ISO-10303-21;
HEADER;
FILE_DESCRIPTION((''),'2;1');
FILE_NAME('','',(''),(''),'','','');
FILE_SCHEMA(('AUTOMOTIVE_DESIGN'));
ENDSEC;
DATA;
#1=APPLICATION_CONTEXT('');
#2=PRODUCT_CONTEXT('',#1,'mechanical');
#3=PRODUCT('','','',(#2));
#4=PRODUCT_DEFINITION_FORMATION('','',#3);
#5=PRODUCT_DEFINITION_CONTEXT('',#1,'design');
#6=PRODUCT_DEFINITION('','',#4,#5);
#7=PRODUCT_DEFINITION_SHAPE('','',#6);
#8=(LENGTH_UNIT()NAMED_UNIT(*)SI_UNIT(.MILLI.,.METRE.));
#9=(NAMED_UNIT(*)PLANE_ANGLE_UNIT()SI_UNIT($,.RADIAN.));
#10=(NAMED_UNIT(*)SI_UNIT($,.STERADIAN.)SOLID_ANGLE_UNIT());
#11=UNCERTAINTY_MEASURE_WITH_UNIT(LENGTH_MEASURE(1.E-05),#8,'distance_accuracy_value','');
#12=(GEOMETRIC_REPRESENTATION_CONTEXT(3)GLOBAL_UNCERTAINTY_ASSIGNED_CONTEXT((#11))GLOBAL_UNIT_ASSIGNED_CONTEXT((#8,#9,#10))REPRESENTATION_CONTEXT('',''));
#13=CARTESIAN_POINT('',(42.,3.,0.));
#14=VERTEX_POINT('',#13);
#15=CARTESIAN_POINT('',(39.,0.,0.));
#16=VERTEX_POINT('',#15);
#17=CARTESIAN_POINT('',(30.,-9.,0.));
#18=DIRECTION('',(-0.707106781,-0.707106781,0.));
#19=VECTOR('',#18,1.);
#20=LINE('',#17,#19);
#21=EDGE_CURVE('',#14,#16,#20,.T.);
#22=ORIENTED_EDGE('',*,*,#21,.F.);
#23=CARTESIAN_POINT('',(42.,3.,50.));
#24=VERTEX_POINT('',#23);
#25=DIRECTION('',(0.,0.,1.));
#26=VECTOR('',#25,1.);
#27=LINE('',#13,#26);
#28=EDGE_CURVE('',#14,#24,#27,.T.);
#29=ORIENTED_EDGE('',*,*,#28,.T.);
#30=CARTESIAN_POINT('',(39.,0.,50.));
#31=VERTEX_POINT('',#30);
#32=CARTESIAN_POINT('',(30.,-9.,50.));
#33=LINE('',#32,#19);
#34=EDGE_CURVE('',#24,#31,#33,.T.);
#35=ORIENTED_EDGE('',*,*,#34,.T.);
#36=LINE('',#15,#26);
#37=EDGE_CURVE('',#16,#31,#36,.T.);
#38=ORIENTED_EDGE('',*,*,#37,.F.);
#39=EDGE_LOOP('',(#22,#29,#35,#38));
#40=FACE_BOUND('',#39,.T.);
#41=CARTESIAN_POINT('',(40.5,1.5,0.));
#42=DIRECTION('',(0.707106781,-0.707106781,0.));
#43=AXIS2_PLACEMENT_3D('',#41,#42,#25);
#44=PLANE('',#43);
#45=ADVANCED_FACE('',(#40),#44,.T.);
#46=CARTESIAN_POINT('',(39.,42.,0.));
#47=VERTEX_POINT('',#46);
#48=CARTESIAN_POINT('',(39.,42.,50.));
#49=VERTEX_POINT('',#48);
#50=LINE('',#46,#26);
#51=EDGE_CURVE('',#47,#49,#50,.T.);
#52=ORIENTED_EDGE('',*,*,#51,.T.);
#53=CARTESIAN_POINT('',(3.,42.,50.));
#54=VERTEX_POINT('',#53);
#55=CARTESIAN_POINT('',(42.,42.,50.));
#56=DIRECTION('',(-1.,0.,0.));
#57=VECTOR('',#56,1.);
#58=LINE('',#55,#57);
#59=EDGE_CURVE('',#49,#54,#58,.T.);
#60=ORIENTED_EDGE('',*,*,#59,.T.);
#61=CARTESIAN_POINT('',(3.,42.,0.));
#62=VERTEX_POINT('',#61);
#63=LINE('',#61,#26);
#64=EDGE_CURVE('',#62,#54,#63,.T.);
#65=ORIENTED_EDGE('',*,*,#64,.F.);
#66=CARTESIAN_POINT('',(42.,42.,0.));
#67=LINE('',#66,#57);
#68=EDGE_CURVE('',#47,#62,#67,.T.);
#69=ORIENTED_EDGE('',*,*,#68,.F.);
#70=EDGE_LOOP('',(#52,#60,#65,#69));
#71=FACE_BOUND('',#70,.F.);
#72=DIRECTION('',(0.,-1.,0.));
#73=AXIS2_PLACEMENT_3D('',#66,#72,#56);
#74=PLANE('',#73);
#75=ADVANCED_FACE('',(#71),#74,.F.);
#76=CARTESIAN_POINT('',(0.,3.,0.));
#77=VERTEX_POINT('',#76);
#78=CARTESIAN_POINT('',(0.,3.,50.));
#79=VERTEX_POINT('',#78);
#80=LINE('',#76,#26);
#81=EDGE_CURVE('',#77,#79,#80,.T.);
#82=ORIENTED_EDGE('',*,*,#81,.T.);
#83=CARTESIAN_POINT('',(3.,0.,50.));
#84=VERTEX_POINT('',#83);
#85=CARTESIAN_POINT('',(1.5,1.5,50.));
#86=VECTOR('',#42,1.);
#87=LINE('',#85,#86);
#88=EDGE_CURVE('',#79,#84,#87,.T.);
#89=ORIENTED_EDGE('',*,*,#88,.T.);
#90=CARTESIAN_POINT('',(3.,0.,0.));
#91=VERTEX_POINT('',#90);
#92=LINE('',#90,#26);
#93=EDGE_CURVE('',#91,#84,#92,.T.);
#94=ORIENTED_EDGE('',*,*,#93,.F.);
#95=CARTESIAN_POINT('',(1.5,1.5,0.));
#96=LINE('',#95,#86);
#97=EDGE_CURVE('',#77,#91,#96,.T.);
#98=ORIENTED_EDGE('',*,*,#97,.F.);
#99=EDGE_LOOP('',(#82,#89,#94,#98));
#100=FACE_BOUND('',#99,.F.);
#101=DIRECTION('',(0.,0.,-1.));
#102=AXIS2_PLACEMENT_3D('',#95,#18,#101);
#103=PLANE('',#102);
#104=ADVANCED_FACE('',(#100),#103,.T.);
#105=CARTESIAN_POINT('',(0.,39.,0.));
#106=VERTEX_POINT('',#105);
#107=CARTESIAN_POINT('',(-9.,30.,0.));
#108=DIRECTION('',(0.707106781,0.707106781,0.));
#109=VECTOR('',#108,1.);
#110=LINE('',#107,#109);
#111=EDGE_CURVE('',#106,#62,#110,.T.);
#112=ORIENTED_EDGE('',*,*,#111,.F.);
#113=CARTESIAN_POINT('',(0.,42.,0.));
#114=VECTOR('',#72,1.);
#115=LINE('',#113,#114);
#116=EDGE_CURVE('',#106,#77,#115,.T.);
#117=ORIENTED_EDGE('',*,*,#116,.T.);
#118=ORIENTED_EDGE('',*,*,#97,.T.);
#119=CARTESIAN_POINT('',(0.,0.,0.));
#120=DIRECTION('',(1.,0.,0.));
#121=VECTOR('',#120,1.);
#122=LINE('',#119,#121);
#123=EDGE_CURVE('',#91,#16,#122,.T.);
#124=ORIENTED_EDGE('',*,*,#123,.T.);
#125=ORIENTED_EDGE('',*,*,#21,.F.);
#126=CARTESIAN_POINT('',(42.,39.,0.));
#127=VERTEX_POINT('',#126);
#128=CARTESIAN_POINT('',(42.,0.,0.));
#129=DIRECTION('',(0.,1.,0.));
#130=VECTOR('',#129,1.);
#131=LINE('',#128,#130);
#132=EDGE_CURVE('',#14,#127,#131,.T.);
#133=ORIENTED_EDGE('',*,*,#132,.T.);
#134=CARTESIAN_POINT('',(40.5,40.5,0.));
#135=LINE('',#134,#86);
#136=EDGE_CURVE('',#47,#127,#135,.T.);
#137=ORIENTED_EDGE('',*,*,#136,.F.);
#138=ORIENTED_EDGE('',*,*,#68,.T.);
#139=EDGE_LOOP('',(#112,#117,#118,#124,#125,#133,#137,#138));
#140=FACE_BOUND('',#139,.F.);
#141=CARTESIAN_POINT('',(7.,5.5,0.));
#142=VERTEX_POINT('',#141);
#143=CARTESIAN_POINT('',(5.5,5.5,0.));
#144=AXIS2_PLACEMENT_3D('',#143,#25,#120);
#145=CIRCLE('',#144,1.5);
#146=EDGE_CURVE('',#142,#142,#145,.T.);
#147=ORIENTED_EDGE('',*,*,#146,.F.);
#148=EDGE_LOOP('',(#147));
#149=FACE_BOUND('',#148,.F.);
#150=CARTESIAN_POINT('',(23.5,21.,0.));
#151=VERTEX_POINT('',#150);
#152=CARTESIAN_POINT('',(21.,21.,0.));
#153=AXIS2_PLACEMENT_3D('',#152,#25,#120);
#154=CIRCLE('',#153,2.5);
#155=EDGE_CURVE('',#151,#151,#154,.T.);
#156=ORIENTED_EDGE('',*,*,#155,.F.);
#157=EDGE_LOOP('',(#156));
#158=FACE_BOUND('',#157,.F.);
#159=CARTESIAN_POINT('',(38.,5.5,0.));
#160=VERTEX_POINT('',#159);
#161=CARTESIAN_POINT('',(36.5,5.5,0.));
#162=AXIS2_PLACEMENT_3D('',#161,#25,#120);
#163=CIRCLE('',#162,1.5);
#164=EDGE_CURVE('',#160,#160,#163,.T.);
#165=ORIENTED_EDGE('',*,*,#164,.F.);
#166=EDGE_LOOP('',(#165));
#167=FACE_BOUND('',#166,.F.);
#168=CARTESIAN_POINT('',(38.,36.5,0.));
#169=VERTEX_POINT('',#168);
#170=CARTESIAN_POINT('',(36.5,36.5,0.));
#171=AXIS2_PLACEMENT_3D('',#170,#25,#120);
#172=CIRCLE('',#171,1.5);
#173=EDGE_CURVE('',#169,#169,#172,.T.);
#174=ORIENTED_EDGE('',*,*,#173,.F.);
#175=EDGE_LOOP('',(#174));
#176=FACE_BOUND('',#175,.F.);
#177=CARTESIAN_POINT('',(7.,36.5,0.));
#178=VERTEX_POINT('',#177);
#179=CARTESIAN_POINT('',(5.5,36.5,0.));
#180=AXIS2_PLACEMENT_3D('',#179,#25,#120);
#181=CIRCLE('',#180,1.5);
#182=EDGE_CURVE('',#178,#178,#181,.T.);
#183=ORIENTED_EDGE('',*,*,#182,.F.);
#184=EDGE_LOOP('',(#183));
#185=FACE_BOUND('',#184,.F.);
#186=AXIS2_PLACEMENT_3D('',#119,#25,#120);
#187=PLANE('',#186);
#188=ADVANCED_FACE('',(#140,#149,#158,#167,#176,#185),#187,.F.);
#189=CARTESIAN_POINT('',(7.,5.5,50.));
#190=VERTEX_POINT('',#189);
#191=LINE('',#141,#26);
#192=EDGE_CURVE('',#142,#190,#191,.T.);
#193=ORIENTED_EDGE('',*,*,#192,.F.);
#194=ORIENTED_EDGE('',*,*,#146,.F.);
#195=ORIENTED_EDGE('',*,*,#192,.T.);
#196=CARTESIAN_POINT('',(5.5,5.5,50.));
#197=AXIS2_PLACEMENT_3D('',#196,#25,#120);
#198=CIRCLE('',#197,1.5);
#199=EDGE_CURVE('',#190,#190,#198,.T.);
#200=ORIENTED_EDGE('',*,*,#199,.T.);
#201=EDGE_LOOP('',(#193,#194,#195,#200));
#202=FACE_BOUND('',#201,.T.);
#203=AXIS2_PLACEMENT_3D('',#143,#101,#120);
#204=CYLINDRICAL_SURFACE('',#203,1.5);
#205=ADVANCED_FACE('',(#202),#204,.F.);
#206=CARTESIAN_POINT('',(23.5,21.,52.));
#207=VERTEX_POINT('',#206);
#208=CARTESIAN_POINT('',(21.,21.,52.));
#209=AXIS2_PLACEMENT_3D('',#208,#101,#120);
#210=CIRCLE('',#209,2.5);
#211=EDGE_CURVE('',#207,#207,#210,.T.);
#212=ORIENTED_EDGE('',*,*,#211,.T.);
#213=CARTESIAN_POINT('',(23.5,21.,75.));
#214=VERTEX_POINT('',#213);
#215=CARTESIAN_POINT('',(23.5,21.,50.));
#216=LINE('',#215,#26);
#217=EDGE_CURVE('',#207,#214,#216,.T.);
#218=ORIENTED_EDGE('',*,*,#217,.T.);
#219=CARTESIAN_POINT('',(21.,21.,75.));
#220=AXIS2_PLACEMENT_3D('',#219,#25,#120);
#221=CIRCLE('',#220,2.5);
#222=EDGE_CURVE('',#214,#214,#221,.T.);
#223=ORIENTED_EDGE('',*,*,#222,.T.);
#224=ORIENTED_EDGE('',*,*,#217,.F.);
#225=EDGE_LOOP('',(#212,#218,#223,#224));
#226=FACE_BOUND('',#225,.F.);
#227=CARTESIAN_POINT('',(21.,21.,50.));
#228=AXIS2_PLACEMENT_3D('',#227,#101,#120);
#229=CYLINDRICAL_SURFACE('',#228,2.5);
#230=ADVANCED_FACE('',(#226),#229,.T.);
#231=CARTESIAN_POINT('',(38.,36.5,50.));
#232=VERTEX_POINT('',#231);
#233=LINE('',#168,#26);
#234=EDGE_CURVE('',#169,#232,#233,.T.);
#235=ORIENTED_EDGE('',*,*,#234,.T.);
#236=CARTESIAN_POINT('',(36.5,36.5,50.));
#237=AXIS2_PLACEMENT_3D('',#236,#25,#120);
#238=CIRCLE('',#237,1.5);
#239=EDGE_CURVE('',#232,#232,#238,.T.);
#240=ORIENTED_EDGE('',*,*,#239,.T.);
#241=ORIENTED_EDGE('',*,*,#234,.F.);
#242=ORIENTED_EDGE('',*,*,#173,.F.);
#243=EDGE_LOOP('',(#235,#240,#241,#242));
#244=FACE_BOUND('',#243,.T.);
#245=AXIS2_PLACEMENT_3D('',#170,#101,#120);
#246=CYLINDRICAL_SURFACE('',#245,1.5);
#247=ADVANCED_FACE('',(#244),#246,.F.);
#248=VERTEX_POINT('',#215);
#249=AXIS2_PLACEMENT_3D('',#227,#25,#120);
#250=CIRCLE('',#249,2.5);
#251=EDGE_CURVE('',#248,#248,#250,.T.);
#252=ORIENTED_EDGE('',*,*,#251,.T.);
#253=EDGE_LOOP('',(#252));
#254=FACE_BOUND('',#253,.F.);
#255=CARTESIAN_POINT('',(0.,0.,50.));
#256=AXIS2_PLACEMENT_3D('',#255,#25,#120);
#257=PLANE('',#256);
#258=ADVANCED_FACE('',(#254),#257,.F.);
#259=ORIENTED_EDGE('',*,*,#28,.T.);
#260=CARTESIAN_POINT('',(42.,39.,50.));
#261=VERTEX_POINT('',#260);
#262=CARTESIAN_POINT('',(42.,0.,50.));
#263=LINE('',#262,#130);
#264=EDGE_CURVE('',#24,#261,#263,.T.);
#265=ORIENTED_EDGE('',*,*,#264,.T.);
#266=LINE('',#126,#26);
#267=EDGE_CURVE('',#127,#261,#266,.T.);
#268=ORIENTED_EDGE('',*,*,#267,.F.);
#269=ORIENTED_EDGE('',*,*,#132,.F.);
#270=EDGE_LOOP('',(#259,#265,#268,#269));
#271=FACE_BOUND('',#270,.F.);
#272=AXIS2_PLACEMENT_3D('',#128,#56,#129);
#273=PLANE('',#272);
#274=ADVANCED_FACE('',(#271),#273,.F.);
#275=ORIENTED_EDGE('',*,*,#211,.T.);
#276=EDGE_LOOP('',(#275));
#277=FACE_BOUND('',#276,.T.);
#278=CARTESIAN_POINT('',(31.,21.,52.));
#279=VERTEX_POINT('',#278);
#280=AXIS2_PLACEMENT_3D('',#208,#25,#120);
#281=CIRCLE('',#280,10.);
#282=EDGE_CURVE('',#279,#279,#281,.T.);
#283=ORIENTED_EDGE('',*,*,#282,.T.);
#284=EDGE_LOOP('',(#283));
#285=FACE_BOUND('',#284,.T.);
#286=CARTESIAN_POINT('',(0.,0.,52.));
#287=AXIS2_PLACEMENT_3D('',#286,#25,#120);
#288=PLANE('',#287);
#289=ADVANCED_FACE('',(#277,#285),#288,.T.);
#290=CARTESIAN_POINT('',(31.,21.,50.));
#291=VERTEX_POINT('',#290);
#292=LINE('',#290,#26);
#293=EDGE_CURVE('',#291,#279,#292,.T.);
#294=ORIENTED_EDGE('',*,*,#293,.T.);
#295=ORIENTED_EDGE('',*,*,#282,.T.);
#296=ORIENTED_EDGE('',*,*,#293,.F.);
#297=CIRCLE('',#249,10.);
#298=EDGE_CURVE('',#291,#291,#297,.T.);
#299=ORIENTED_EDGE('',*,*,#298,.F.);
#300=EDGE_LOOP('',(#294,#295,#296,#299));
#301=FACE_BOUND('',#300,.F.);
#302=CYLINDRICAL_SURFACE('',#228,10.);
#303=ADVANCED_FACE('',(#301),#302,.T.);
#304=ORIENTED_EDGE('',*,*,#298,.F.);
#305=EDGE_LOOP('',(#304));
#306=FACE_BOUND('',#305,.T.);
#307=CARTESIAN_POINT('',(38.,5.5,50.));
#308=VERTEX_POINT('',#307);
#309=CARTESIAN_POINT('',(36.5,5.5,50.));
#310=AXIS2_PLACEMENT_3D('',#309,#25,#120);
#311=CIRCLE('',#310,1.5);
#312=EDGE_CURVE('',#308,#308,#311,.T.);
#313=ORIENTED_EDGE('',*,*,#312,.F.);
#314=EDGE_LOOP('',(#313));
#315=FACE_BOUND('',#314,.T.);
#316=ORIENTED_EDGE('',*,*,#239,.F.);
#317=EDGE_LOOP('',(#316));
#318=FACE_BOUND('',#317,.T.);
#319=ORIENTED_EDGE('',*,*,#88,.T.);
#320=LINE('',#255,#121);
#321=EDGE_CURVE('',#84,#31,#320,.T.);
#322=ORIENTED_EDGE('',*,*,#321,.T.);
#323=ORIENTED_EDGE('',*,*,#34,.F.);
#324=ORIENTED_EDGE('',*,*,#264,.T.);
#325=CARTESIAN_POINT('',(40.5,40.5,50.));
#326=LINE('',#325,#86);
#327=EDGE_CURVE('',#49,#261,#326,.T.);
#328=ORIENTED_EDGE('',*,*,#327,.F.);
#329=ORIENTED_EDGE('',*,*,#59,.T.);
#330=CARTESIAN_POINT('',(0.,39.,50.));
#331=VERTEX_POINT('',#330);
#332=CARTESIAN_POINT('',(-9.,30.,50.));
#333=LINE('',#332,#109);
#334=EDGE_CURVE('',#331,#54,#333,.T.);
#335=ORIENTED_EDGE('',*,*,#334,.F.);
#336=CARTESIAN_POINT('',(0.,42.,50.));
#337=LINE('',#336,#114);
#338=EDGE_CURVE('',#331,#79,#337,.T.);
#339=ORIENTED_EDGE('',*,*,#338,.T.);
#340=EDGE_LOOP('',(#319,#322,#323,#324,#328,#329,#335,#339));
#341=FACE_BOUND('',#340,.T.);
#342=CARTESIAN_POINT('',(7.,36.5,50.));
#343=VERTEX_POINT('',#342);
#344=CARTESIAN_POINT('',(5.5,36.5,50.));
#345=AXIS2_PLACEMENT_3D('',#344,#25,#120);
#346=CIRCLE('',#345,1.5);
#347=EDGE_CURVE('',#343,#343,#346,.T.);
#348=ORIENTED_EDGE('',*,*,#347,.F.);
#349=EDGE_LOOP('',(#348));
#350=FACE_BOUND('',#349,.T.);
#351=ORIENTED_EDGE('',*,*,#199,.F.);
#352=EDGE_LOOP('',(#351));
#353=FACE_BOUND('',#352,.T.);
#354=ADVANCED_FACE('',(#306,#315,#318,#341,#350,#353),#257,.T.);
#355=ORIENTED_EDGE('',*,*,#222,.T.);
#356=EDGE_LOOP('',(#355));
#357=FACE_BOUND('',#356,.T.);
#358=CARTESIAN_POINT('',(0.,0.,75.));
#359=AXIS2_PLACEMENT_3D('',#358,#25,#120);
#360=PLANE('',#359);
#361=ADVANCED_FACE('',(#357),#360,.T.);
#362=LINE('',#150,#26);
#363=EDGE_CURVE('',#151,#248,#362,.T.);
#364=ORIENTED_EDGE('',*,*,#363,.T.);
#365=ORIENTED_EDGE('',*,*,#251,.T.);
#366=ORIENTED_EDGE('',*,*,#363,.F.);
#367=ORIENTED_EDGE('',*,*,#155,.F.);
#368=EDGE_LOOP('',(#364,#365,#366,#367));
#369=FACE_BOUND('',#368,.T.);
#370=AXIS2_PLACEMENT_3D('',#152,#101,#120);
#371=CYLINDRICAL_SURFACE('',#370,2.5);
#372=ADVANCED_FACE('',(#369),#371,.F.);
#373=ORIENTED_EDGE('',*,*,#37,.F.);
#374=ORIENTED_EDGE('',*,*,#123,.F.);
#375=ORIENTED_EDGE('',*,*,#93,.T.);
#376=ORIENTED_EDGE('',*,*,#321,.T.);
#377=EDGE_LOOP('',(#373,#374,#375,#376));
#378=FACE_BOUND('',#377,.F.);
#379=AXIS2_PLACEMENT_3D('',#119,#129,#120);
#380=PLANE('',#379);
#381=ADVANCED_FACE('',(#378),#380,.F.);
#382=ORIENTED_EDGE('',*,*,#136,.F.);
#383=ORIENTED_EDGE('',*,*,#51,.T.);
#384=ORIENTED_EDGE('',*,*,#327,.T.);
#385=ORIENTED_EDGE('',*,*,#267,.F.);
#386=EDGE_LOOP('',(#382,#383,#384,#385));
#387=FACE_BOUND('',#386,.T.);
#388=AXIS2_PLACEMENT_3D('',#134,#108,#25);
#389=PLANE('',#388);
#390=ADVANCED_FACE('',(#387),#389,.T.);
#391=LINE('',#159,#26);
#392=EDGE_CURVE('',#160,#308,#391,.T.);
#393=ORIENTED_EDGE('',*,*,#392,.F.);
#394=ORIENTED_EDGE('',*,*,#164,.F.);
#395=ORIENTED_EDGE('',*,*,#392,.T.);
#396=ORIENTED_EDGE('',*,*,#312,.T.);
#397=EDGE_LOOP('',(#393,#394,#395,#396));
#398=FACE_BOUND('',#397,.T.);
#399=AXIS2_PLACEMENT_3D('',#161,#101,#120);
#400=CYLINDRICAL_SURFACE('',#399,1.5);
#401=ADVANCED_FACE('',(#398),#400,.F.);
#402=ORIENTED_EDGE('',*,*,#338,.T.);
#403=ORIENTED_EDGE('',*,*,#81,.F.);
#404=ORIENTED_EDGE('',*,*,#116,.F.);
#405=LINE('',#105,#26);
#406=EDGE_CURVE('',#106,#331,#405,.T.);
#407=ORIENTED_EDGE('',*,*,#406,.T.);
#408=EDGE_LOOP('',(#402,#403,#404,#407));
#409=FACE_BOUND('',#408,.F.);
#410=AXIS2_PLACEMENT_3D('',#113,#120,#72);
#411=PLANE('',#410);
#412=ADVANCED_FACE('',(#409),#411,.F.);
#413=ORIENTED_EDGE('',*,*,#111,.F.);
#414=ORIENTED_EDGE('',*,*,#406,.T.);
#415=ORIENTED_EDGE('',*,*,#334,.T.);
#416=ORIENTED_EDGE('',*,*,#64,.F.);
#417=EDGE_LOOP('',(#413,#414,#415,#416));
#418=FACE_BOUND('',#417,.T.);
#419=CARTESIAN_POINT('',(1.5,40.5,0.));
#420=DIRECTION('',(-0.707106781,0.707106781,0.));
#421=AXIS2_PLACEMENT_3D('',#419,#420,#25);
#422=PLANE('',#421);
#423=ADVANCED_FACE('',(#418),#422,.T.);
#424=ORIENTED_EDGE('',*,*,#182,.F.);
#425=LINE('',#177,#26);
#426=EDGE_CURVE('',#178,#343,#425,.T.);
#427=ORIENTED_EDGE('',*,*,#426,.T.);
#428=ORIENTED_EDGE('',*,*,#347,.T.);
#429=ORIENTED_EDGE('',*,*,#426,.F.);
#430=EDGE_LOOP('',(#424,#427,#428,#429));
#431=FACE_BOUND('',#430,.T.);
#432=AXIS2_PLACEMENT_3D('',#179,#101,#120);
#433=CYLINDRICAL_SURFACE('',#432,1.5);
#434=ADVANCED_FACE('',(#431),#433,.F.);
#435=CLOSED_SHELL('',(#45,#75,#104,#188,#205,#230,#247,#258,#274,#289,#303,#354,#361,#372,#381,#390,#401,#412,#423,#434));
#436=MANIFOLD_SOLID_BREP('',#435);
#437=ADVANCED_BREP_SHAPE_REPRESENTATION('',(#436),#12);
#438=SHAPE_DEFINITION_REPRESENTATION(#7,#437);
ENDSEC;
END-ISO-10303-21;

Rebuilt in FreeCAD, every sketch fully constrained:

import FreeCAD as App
import Part
import Sketcher

V = App.Vector
Q = App.Units.Quantity


def edges_at(feature, points):
    """Names of the edges that pass closest to the given points."""
    edges = feature.Shape.Edges
    near = lambda p: min(range(len(edges)), key=lambda i: edges[i].distToShape(Part.Vertex(*p))[0])
    return sorted({f"Edge{near(p) + 1}" for p in points})

doc = App.newDocument("Part")
body = doc.addObject("PartDesign::Body", "Body")
body.AllowCompound = True

sketch1 = doc.addObject("Sketcher::SketchObject", "Sketch")
body.addObject(sketch1)
sketch1.AttachmentSupport = (doc.XY_Plane, [""])
sketch1.MapMode = "FlatFace"
sketch1.addGeometry(Part.LineSegment(V(0, 42, 0), V(0, 0, 0)), False)
sketch1.addGeometry(Part.LineSegment(V(0, 0, 0), V(42, 0, 0)), False)
sketch1.addGeometry(Part.LineSegment(V(42, 0, 0), V(42, 42, 0)), False)
sketch1.addGeometry(Part.LineSegment(V(42, 42, 0), V(0, 42, 0)), False)
sketch1.addGeometry(Part.Circle(V(5.5, 5.5, 0), V(0, 0, 1), 1.5), False)
sketch1.addGeometry(Part.Circle(V(36.5, 5.5, 0), V(0, 0, 1), 1.5), False)
sketch1.addGeometry(Part.Circle(V(5.5, 36.5, 0), V(0, 0, 1), 1.5), False)
sketch1.addGeometry(Part.Circle(V(21, 21, 0), V(0, 0, 1), 2.5), False)
sketch1.addGeometry(Part.Circle(V(36.5, 36.5, 0), V(0, 0, 1), 1.5), False)
sketch1.addConstraint(Sketcher.Constraint("Coincident", 0, 2, 1, 1))
sketch1.addConstraint(Sketcher.Constraint("Coincident", 1, 2, 2, 1))
sketch1.addConstraint(Sketcher.Constraint("Coincident", 2, 2, 3, 1))
sketch1.addConstraint(Sketcher.Constraint("Coincident", 3, 2, 0, 1))
sketch1.addConstraint(Sketcher.Constraint("Vertical", 0))
sketch1.addConstraint(Sketcher.Constraint("Horizontal", 1))
sketch1.addConstraint(Sketcher.Constraint("Vertical", 2))
sketch1.addConstraint(Sketcher.Constraint("Horizontal", 3))
sketch1.addConstraint(Sketcher.Constraint("Coincident", 0, 2, -1, 1))
sketch1.addConstraint(Sketcher.Constraint("Equal", 4, 5))
sketch1.addConstraint(Sketcher.Constraint("Equal", 5, 6))
sketch1.addConstraint(Sketcher.Constraint("Equal", 6, 8))
sketch1.addConstraint(Sketcher.Constraint("Horizontal", 4, 3, 5, 3))
sketch1.addConstraint(Sketcher.Constraint("Horizontal", 6, 3, 8, 3))
sketch1.addConstraint(Sketcher.Constraint("Vertical", 4, 3, 6, 3))
sketch1.addConstraint(Sketcher.Constraint("Vertical", 5, 3, 8, 3))
sketch1.addConstraint(Sketcher.Constraint("Equal", 3, 0))
sketch1.addConstraint(Sketcher.Constraint("Diameter", 4, Q("3 mm")))
sketch1.addConstraint(Sketcher.Constraint("Diameter", 7, Q("5 mm")))
sketch1.addConstraint(Sketcher.Constraint("DistanceX", 1, 1, 1, 2, Q("42 mm")))
sketch1.addConstraint(Sketcher.Constraint("DistanceX", 4, 3, 5, 3, Q("31 mm")))
sketch1.addConstraint(Sketcher.Constraint("DistanceY", 4, 3, 6, 3, Q("31 mm")))
sketch1.addConstraint(Sketcher.Constraint("DistanceX", -1, 1, 7, 3, Q("21 mm")))
sketch1.addConstraint(Sketcher.Constraint("DistanceY", -1, 1, 7, 3, Q("21 mm")))
sketch1.addConstraint(Sketcher.Constraint("DistanceX", -1, 1, 4, 3, Q("5.5 mm")))
sketch1.addConstraint(Sketcher.Constraint("DistanceY", -1, 1, 4, 3, Q("5.5 mm")))
pad1 = doc.addObject("PartDesign::Pad", "Pad")
body.addObject(pad1)
pad1.Profile = sketch1
pad1.Length = 50
doc.recompute()

chamfer = doc.addObject("PartDesign::Chamfer", "Chamfer")
body.addObject(chamfer)
chamfer.Base = (pad1, edges_at(pad1, [
    (42, 42, 25),
    (42, 0, 25),
    (0, 0, 25),
    (0, 42, 25),
]))
chamfer.Size = 3

sketch2 = doc.addObject("Sketcher::SketchObject", "Sketch001")
body.addObject(sketch2)
sketch2.AttachmentSupport = (doc.XY_Plane, [""])
sketch2.MapMode = "FlatFace"
sketch2.AttachmentOffset = App.Placement(V(0, 0, 50), App.Rotation())
sketch2.addGeometry(Part.Circle(V(21, 21, 0), V(0, 0, 1), 2.5), False)
sketch2.addConstraint(Sketcher.Constraint("Diameter", 0, Q("5 mm")))
sketch2.addConstraint(Sketcher.Constraint("DistanceX", -1, 1, 0, 3, Q("21 mm")))
sketch2.addConstraint(Sketcher.Constraint("DistanceY", -1, 1, 0, 3, Q("21 mm")))
pad2 = doc.addObject("PartDesign::Pad", "Pad001")
body.addObject(pad2)
pad2.Profile = sketch2
pad2.Length = 25

sketch3 = doc.addObject("Sketcher::SketchObject", "Sketch002")
body.addObject(sketch3)
sketch3.AttachmentSupport = (doc.XY_Plane, [""])
sketch3.MapMode = "FlatFace"
sketch3.AttachmentOffset = App.Placement(V(0, 0, 50), App.Rotation())
sketch3.addGeometry(Part.Circle(V(21, 21, 0), V(0, 0, 1), 10), False)
sketch3.addConstraint(Sketcher.Constraint("Diameter", 0, Q("20 mm")))
sketch3.addConstraint(Sketcher.Constraint("DistanceX", -1, 1, 0, 3, Q("21 mm")))
sketch3.addConstraint(Sketcher.Constraint("DistanceY", -1, 1, 0, 3, Q("21 mm")))
pad3 = doc.addObject("PartDesign::Pad", "Pad002")
body.addObject(pad3)
pad3.Profile = sketch3
pad3.Length = 2

doc.recompute()
